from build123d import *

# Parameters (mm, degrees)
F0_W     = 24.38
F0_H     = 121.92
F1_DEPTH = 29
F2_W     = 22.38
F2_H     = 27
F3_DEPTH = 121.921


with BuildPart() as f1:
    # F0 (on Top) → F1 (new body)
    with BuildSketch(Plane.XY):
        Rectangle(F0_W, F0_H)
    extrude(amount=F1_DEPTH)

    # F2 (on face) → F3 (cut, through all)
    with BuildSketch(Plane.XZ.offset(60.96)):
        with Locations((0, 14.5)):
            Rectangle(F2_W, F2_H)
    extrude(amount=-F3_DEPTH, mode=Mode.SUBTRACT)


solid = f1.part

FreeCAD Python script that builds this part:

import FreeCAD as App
import Part
import Sketcher

V = App.Vector

doc = App.newDocument("Part")
params = doc.addObject("Spreadsheet::Sheet", "Params")
for row, (alias, value) in enumerate([
    ("sketch1_width", "24.38 mm"),
    ("sketch1_height", "121.92 mm"),
    ("pad1_length", "29 mm"),
    ("sketch2_height", "27 mm"),
    ("sketch2_width", "22.38 mm"),
], start=1):
    params.set(f"A{row}", alias)
    params.set(f"B{row}", "=" + value)
    params.setAlias(f"B{row}", alias)

body = doc.addObject("PartDesign::Body", "Body")

# Sketch on XY plane
sketch1 = body.newObject("Sketcher::SketchObject", "Sketch")
sketch1.AttachmentSupport = (doc.getObject("XY_Plane"), [""])
sketch1.MapMode = "FlatFace"
sketch1.addGeometry([
    Part.LineSegment(V(-12, 61, 0), V(-12, -61, 0)),
    Part.LineSegment(V(-12, -61, 0), V(12, -61, 0)),
    Part.LineSegment(V(12, -61, 0), V(12, 61, 0)),
    Part.LineSegment(V(12, 61, 0), V(-12, 61, 0)),
], False)
sketch1.addConstraint([
    Sketcher.Constraint("Coincident", 0, 2, 1, 1),
    Sketcher.Constraint("Coincident", 1, 2, 2, 1),
    Sketcher.Constraint("Coincident", 2, 2, 3, 1),
    Sketcher.Constraint("Coincident", 3, 2, 0, 1),
    Sketcher.Constraint("Vertical", 0),
    Sketcher.Constraint("Horizontal", 1),
    Sketcher.Constraint("Vertical", 2),
    Sketcher.Constraint("Horizontal", 3),
    Sketcher.Constraint("Symmetric", 0, 2, 2, 2, -1, 1),
    Sketcher.Constraint("DistanceX", 1, 1, 1, 2, 24.38),
    Sketcher.Constraint("DistanceY", 0, 2, 0, 1, 121.92),
])
sketch1.setExpression("Constraints[9]", "Params.sketch1_width")
sketch1.setExpression("Constraints[10]", "Params.sketch1_height")
pad1 = body.newObject("PartDesign::Pad", "Pad")
pad1.Profile = sketch1
pad1.setExpression("Length", "Params.pad1_length")

# Sketch on XZ plane
sketch2 = body.newObject("Sketcher::SketchObject", "Sketch001")
sketch2.AttachmentSupport = (doc.getObject("XZ_Plane"), [""])
sketch2.MapMode = "FlatFace"
sketch2.AttachmentOffset = App.Placement(V(0, 0, 60.96), App.Rotation())
sketch2.addGeometry([
    Part.LineSegment(V(-11, 28, 0), V(-11, 1, 0)),
    Part.LineSegment(V(-11, 1, 0), V(11, 1, 0)),
    Part.LineSegment(V(11, 1, 0), V(11, 28, 0)),
    Part.LineSegment(V(11, 28, 0), V(-11, 28, 0)),
], False)
sketch2.addConstraint([
    Sketcher.Constraint("Coincident", 0, 2, 1, 1),
    Sketcher.Constraint("Coincident", 1, 2, 2, 1),
    Sketcher.Constraint("Coincident", 2, 2, 3, 1),
    Sketcher.Constraint("Coincident", 3, 2, 0, 1),
    Sketcher.Constraint("Vertical", 0),
    Sketcher.Constraint("Horizontal", 1),
    Sketcher.Constraint("Vertical", 2),
    Sketcher.Constraint("Horizontal", 3),
    Sketcher.Constraint("DistanceY", 0, 2, 0, 1, 27.0),
    Sketcher.Constraint("DistanceY", -1, 1, 0, 2, 1.0),
    Sketcher.Constraint("DistanceX", 1, 1, 1, 2, 22.38),
    Sketcher.Constraint("DistanceX", 0, 2, -1, 1, 11.19),
])
sketch2.setExpression("Constraints[8]", "Params.sketch2_height")
sketch2.setExpression("Constraints[10]", "Params.sketch2_width")
pocket1 = body.newObject("PartDesign::Pocket", "Pocket")
pocket1.Profile = sketch2
pocket1.Type = "ThroughAll"

doc.recompute()
